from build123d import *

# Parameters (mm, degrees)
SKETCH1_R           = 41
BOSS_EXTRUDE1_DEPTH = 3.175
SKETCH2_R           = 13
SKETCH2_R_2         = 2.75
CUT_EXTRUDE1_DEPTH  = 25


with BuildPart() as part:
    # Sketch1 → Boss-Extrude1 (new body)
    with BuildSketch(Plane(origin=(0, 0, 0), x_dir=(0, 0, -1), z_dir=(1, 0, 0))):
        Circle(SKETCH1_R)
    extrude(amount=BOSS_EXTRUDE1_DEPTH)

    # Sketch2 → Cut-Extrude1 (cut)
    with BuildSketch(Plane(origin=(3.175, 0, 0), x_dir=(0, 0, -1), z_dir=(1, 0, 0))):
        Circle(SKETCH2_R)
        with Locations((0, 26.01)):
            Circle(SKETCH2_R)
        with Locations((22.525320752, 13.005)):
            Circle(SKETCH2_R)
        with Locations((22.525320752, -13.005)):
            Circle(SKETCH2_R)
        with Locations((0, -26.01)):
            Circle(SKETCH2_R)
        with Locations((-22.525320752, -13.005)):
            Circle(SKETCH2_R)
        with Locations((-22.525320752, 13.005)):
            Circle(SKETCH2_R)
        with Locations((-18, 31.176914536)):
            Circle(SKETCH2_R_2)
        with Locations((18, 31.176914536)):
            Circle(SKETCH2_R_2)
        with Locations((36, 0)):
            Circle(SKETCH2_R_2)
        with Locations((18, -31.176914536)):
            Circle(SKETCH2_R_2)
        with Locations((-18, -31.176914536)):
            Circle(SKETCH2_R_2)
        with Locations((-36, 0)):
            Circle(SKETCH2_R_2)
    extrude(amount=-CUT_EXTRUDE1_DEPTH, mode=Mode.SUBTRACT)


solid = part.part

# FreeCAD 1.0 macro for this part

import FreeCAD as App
import Part
import Sketcher

V = App.Vector
Q = App.Units.Quantity

doc = App.newDocument("Part")
params = doc.addObject("Spreadsheet::Sheet", "Params")
for row, (alias, value) in enumerate([
    ("sketch1_diameter", "82 mm"),
    ("pad1_length", "3.175 mm"),
    ("sketch2_diameter", "26 mm"),
    ("sketch2_diameter2", "5.5 mm"),
    ("pocket1_length", "25 mm"),
], start=1):
    params.set(f"A{row}", alias)
    params.set(f"B{row}", "=" + value)
    params.setAlias(f"B{row}", alias)

body = doc.addObject("PartDesign::Body", "Body")

sketch1 = doc.addObject("Sketcher::SketchObject", "Sketch")
body.addObject(sketch1)
sketch1.AttachmentSupport = (doc.YZ_Plane, [""])
sketch1.MapMode = "FlatFace"
sketch1.addGeometry(Part.Circle(V(0, 0, 0), V(0, 0, 1), 41), False)
sketch1.addConstraint(Sketcher.Constraint("Coincident", 0, 3, -1, 1))
sketch1.addConstraint(Sketcher.Constraint("Diameter", 0, Q("82 mm")))
sketch1.setExpression("Constraints[1]", "Params.sketch1_diameter")
pad1 = doc.addObject("PartDesign::Pad", "Pad")
body.addObject(pad1)
pad1.Profile = sketch1
pad1.setExpression("Length", "Params.pad1_length")

sketch2 = doc.addObject("Sketcher::SketchObject", "Sketch001")
body.addObject(sketch2)
sketch2.AttachmentSupport = (doc.YZ_Plane, [""])
sketch2.MapMode = "FlatFace"
sketch2.AttachmentOffset = App.Placement(V(0, 0, 3.175), App.Rotation())
sketch2.addGeometry(Part.Circle(V(0, 0, 0), V(0, 0, 1), 13), False)
sketch2.addGeometry(Part.Circle(V(26.01, 0, 0), V(0, 0, 1), 13), False)
sketch2.addGeometry(Part.Circle(V(13.005, -22.525321, 0), V(0, 0, 1), 13), False)
sketch2.addGeometry(Part.Circle(V(-13.005, -22.525321, 0), V(0, 0, 1), 13), False)
sketch2.addGeometry(Part.Circle(V(-26.01, 0, 0), V(0, 0, 1), 13), False)
sketch2.addGeometry(Part.Circle(V(-13.005, 22.525321, 0), V(0, 0, 1), 13), False)
sketch2.addGeometry(Part.Circle(V(13.005, 22.525321, 0), V(0, 0, 1), 13), False)
sketch2.addGeometry(Part.Circle(V(31.176915, 18, 0), V(0, 0, 1), 2.75), False)
sketch2.addGeometry(Part.Circle(V(31.176915, -18, 0), V(0, 0, 1), 2.75), False)
sketch2.addGeometry(Part.Circle(V(0, -36, 0), V(0, 0, 1), 2.75), False)
sketch2.addGeometry(Part.Circle(V(-31.176915, -18, 0), V(0, 0, 1), 2.75), False)
sketch2.addGeometry(Part.Circle(V(-31.176915, 18, 0), V(0, 0, 1), 2.75), False)
sketch2.addGeometry(Part.Circle(V(0, 36, 0), V(0, 0, 1), 2.75), False)
sketch2.addConstraint(Sketcher.Constraint("Coincident", 0, 3, -1, 1))
sketch2.addConstraint(Sketcher.Constraint("Equal", 0, 1))
sketch2.addConstraint(Sketcher.Constraint("Equal", 1, 2))
sketch2.addConstraint(Sketcher.Constraint("Equal", 2, 3))
sketch2.addConstraint(Sketcher.Constraint("Equal", 3, 4))
sketch2.addConstraint(Sketcher.Constraint("Equal", 4, 5))
sketch2.addConstraint(Sketcher.Constraint("Equal", 5, 6))
sketch2.addConstraint(Sketcher.Constraint("Equal", 7, 8))
sketch2.addConstraint(Sketcher.Constraint("Equal", 8, 9))
sketch2.addConstraint(Sketcher.Constraint("Equal", 9, 10))
sketch2.addConstraint(Sketcher.Constraint("Equal", 10, 11))
sketch2.addConstraint(Sketcher.Constraint("Equal", 11, 12))
sketch2.addConstraint(Sketcher.Constraint("Symmetric", 1, 3, 4, 3, -1, 1))
sketch2.addConstraint(Sketcher.Constraint("Symmetric", 2, 3, 5, 3, -1, 1))
sketch2.addConstraint(Sketcher.Constraint("Symmetric", 3, 3, 6, 3, -1, 1))
sketch2.addConstraint(Sketcher.Constraint("Symmetric", 7, 3, 10, 3, -1, 1))
sketch2.addConstraint(Sketcher.Constraint("Symmetric", 8, 3, 11, 3, -1, 1))
sketch2.addConstraint(Sketcher.Constraint("Symmetric", 9, 3, 12, 3, -1, 1))
sketch2.addConstraint(Sketcher.Constraint("Symmetric", 2, 3, 3, 3, -2))
sketch2.addConstraint(Sketcher.Constraint("Symmetric", 8, 3, 10, 3, -2))
sketch2.addConstraint(Sketcher.Constraint("PointOnObject", 1, 3, -1))
sketch2.addConstraint(Sketcher.Constraint("PointOnObject", 9, 3, -2))
sketch2.addConstraint(Sketcher.Constraint("Diameter", 0, Q("26 mm")))
sketch2.addConstraint(Sketcher.Constraint("Diameter", 7, Q("5.5 mm")))
sketch2.addConstraint(Sketcher.Constraint("DistanceY", -1, 1, 7, 3, Q("18 mm")))
sketch2.addConstraint(Sketcher.Constraint("DistanceY", 9, 3, -1, 1, Q("36 mm")))
sketch2.addConstraint(Sketcher.Constraint("DistanceX", -1, 1, 1, 3, Q("26.01 mm")))
sketch2.addConstraint(Sketcher.Constraint("DistanceX", 3, 3, 2, 3, Q("26.01 mm")))
sketch2.addConstraint(Sketcher.Constraint("DistanceY", 2, 3, -1, 1, Q("22.525321 mm")))
sketch2.addConstraint(Sketcher.Constraint("DistanceX", -1, 1, 7, 3, Q("31.176915 mm")))
sketch2.setExpression("Constraints[22]", "Params.sketch2_diameter")
sketch2.setExpression("Constraints[23]", "Params.sketch2_diameter2")
pocket1 = doc.addObject("PartDesign::Pocket", "Pocket")
body.addObject(pocket1)
pocket1.Profile = sketch2
pocket1.setExpression("Length", "Params.pocket1_length")

doc.recompute()
